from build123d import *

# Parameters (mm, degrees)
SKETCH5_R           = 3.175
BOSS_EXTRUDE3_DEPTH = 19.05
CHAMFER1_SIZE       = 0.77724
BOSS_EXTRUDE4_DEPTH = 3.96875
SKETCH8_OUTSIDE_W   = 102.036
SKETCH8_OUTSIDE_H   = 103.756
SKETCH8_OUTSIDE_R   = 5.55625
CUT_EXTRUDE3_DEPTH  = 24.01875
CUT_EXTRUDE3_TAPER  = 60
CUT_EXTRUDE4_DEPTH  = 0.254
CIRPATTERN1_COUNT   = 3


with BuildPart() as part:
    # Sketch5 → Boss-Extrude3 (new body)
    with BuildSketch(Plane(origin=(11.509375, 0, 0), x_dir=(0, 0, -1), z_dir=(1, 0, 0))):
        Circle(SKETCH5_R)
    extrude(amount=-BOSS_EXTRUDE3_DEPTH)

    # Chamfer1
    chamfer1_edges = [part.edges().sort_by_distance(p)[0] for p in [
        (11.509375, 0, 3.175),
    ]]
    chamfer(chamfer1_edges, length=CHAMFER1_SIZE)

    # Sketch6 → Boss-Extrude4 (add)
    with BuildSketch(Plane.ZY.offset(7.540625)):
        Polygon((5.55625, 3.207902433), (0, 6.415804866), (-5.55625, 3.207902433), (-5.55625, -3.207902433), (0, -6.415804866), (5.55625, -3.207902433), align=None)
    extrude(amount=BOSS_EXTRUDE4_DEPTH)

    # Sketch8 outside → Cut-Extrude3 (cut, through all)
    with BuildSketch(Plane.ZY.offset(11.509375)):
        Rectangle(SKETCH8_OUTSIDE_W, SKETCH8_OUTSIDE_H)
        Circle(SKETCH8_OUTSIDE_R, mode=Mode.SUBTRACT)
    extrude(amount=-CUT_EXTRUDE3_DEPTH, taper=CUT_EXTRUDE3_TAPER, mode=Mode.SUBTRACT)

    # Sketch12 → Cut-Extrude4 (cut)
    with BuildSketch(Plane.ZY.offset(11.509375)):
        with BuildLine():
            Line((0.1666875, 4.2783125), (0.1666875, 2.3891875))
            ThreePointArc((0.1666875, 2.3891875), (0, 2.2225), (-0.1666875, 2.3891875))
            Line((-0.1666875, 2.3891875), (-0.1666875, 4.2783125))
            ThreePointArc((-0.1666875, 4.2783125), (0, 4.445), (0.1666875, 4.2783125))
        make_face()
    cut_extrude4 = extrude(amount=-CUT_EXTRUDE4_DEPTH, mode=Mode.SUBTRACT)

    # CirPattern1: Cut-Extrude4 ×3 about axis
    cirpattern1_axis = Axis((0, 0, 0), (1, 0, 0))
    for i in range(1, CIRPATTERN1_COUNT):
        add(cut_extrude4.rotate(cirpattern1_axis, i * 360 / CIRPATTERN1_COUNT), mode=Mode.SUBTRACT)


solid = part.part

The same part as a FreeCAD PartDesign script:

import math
import FreeCAD as App
import Part
import Sketcher
from FreeCAD import Vector
Q = App.Units.Quantity


def edges_at(feature, points):
    """Names of the edges that pass closest to the given points."""
    edges = feature.Shape.Edges
    near = lambda p: min(range(len(edges)), key=lambda i: edges[i].distToShape(Part.Vertex(*p))[0])
    return sorted({f"Edge{near(p) + 1}" for p in points})

doc = App.newDocument("Part")
body = doc.addObject("PartDesign::Body", "Body")

# Sketch on YZ plane
sketch1 = doc.addObject("Sketcher::SketchObject", "Sketch")
body.addObject(sketch1)
sketch1.AttachmentSupport = (doc.YZ_Plane, [""])
sketch1.MapMode = "FlatFace"
sketch1.AttachmentOffset = App.Placement(Vector(0, 0, 0.453125 * 25.4), App.Rotation())
sketch1.addGeometry(Part.Circle(Vector(0, 0, 0), Vector(0, 0, 1), 3.2), False)
sketch1.addConstraint([
    Sketcher.Constraint("Coincident", 0, 3, -1, 1),
    Sketcher.Constraint("Diameter", 0, Q("0.25 in")),
])
pad1 = doc.addObject("PartDesign::Pad", "Pad")
body.addObject(pad1)
pad1.Profile = sketch1
pad1.Length = Q("0.75 in")
pad1.Reversed = True
doc.recompute()

chamfer = doc.addObject("PartDesign::Chamfer", "Chamfer")
body.addObject(chamfer)
chamfer.Base = (pad1, edges_at(pad1, [(11.509, 0, 3.175)]))
chamfer.Size = Q("0.0306 in")

# Sketch on YZ plane
sketch2 = doc.addObject("Sketcher::SketchObject", "Sketch001")
body.addObject(sketch2)
sketch2.AttachmentSupport = (doc.YZ_Plane, [""])
sketch2.MapMode = "FlatFace"
sketch2.AttachmentOffset = App.Placement(Vector(0, 0, -0.296875 * 25.4), App.Rotation())
sketch2.addGeometry([
    Part.LineSegment(Vector(3, 6, 0), Vector(6, 0, 0)),  # 0
    Part.LineSegment(Vector(6, 0, 0), Vector(3, -6, 0)),  # 1
    Part.LineSegment(Vector(3, -6, 0), Vector(-3, -6, 0)),  # 2
    Part.LineSegment(Vector(-3, -6, 0), Vector(-6, 0, 0)),  # 3
    Part.LineSegment(Vector(-6, 0, 0), Vector(-3, 6, 0)),  # 4
    Part.LineSegment(Vector(-3, 6, 0), Vector(3, 6, 0)),  # 5
], False)
sketch2.addConstraint([
    Sketcher.Constraint("Coincident", 0, 2, 1, 1),
    Sketcher.Constraint("Coincident", 1, 2, 2, 1),
    Sketcher.Constraint("Coincident", 2, 2, 3, 1),
    Sketcher.Constraint("Coincident", 3, 2, 4, 1),
    Sketcher.Constraint("Coincident", 4, 2, 5, 1),
    Sketcher.Constraint("Coincident", 5, 2, 0, 1),
    Sketcher.Constraint("Horizontal", 2),
    Sketcher.Constraint("Horizontal", 5),
    Sketcher.Constraint("Symmetric", 0, 2, 3, 2, -1, 1),
    Sketcher.Constraint("Symmetric", 1, 2, 4, 2, -1, 1),
    Sketcher.Constraint("PointOnObject", 0, 2, -1),
    Sketcher.Constraint("Parallel", 0, 3),
    Sketcher.Constraint("Vertical", 2, 2, 4, 2),
    Sketcher.Constraint("Angle", 0, Q("-60 deg")),
    Sketcher.Constraint("DistanceY", 1, 2, -1, 1, Q("0.21875 in")),
    Sketcher.Constraint("DistanceX", 2, 2, 2, 1, 6.415805),
])
pad2 = doc.addObject("PartDesign::Pad", "Pad001")
body.addObject(pad2)
pad2.Profile = sketch2
pad2.Length = Q("0.15625 in")
pad2.Reversed = True

# Sketch on YZ plane
sketch3 = doc.addObject("Sketcher::SketchObject", "Sketch002")
body.addObject(sketch3)
sketch3.AttachmentSupport = (doc.YZ_Plane, [""])
sketch3.MapMode = "FlatFace"
sketch3.AttachmentOffset = App.Placement(Vector(0, 0, -0.453125 * 25.4), App.Rotation())
sketch3.addGeometry([
    Part.LineSegment(Vector(52, -51, 0), Vector(-52, -51, 0)),  # 0
    Part.LineSegment(Vector(-52, -51, 0), Vector(-52, 51, 0)),  # 1
    Part.LineSegment(Vector(-52, 51, 0), Vector(52, 51, 0)),  # 2
    Part.LineSegment(Vector(52, 51, 0), Vector(52, -51, 0)),  # 3
    Part.Circle(Vector(0, 0, 0), Vector(0, 0, 1), 6),  # 4
], False)
sketch3.addConstraint([
    Sketcher.Constraint("Coincident", 0, 2, 1, 1),
    Sketcher.Constraint("Coincident", 1, 2, 2, 1),
    Sketcher.Constraint("Coincident", 2, 2, 3, 1),
    Sketcher.Constraint("Coincident", 3, 2, 0, 1),
    Sketcher.Constraint("Horizontal", 0),
    Sketcher.Constraint("Vertical", 1),
    Sketcher.Constraint("Horizontal", 2),
    Sketcher.Constraint("Vertical", 3),
    Sketcher.Constraint("Coincident", 4, 3, -1, 1),
    Sketcher.Constraint("Symmetric", 0, 2, 2, 2, -1, 1),
    Sketcher.Constraint("Diameter", 4, Q("0.4375 in")),
    Sketcher.Constraint("DistanceX", 0, 2, 0, 1, 103.756),
    Sketcher.Constraint("DistanceY", 1, 1, 1, 2, 102.036),
])
pocket1 = doc.addObject("PartDesign::Pocket", "Pocket")
body.addObject(pocket1)
pocket1.Profile = sketch3
pocket1.Length = 24.01875
pocket1.Reversed = True
pocket1.TaperAngle = 60

# Sketch on YZ plane
sketch4 = doc.addObject("Sketcher::SketchObject", "Sketch003")
body.addObject(sketch4)
sketch4.AttachmentSupport = (doc.YZ_Plane, [""])
sketch4.MapMode = "FlatFace"
sketch4.AttachmentOffset = App.Placement(Vector(0, 0, -0.453125 * 25.4), App.Rotation())
sketch4.addGeometry([
    Part.LineSegment(Vector(2.39, 0.17, 0), Vector(4.28, 0.17, 0)),
    Part.ArcOfCircle(Part.Circle(Vector(4.28, 0, 0), Vector(0, 0, 1), 0.17), math.radians(-90), math.radians(90)),
    Part.LineSegment(Vector(4.28, -0.17, 0), Vector(2.39, -0.17, 0)),
    Part.ArcOfCircle(Part.Circle(Vector(2.39, 0, 0), Vector(0, 0, 1), 0.17), math.radians(90), math.radians(270)),
], False)
sketch4.addConstraint([
    Sketcher.Constraint("Tangent", 0, 2, 1, 2),
    Sketcher.Constraint("Tangent", 1, 1, 2, 1),
    Sketcher.Constraint("Tangent", 2, 2, 3, 2),
    Sketcher.Constraint("Tangent", 3, 1, 0, 1),
    Sketcher.Constraint("Horizontal", 0),
    Sketcher.Constraint("Horizontal", 2),
    Sketcher.Constraint("PointOnObject", 1, 3, -1),
    Sketcher.Constraint("Radius", 1, 0.166687),
    Sketcher.Constraint("DistanceX", 0, 1, 0, 2, 1.889125),
    Sketcher.Constraint("DistanceX", -1, 1, 1, 3, 4.278313),
])
pocket2 = doc.addObject("PartDesign::Pocket", "Pocket001")
body.addObject(pocket2)
pocket2.Profile = sketch4
pocket2.Length = Q("0.01 in")
pocket2.Reversed = True
doc.recompute()

polarpattern = doc.addObject("PartDesign::PolarPattern", "PolarPattern")
body.addObject(polarpattern)
polarpattern.Originals = [pocket2]
polarpattern.Axis = (doc.X_Axis, [""])
polarpattern.Angle = 360
polarpattern.Occurrences = 3
body.Tip = polarpattern

doc.recompute()
